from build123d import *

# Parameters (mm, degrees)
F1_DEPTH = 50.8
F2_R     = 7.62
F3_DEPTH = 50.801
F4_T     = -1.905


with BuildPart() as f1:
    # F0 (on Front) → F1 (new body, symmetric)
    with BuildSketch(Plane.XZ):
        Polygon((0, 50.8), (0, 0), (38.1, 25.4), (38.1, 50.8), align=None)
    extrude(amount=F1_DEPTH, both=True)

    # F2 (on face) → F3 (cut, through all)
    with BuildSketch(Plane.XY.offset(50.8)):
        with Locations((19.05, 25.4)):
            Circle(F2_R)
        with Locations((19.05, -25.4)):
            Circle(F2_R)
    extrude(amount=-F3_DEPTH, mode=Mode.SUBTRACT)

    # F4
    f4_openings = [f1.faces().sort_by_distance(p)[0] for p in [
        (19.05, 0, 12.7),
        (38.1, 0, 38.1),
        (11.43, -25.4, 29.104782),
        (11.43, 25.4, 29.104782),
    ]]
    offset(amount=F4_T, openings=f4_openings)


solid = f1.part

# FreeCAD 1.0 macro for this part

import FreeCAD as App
import Part
import Sketcher
from FreeCAD import Vector
Q = App.Units.Quantity


def faces_at(feature, points):
    """Names of the faces that lie closest to the given points."""
    faces = feature.Shape.Faces
    near = lambda p: min(range(len(faces)), key=lambda i: faces[i].distToShape(Part.Vertex(*p))[0])
    return sorted({f"Face{near(p) + 1}" for p in points})

doc = App.newDocument("Part")
body = doc.addObject("PartDesign::Body", "Body")

sketch1 = body.newObject("Sketcher::SketchObject", "Sketch")
sketch1.AttachmentSupport = (doc.getObject("XZ_Plane"), [""])
sketch1.MapMode = "FlatFace"
sketch1.addGeometry(Part.LineSegment(Vector(0, 51, 0), Vector(0, 0, 0)), False)
sketch1.addGeometry(Part.LineSegment(Vector(0, 0, 0), Vector(38, 25, 0)), False)
sketch1.addGeometry(Part.LineSegment(Vector(38, 25, 0), Vector(38, 51, 0)), False)
sketch1.addGeometry(Part.LineSegment(Vector(38, 51, 0), Vector(0, 51, 0)), False)
sketch1.addConstraint(Sketcher.Constraint("Coincident", 0, 2, 1, 1))
sketch1.addConstraint(Sketcher.Constraint("Coincident", 1, 2, 2, 1))
sketch1.addConstraint(Sketcher.Constraint("Coincident", 2, 2, 3, 1))
sketch1.addConstraint(Sketcher.Constraint("Coincident", 3, 2, 0, 1))
sketch1.addConstraint(Sketcher.Constraint("Vertical", 0))
sketch1.addConstraint(Sketcher.Constraint("Vertical", 2))
sketch1.addConstraint(Sketcher.Constraint("Horizontal", 3))
sketch1.addConstraint(Sketcher.Constraint("Coincident", 0, 2, -1, 1))
sketch1.addConstraint(Sketcher.Constraint("DistanceY", 0, 2, 0, 1, Q("2 in")))
sketch1.addConstraint(Sketcher.Constraint("DistanceY", 2, 1, 2, 2, Q("1 in")))
sketch1.addConstraint(Sketcher.Constraint("DistanceX", 3, 2, 3, 1, Q("1.5 in")))
pad1 = body.newObject("PartDesign::Pad", "Pad")
pad1.Profile = sketch1
pad1.Length = Q("4 in")
pad1.Midplane = True

sketch2 = body.newObject("Sketcher::SketchObject", "Sketch001")
sketch2.AttachmentSupport = (doc.getObject("XY_Plane"), [""])
sketch2.MapMode = "FlatFace"
sketch2.AttachmentOffset = App.Placement(Vector(0, 0, 2 * 25.4), App.Rotation())
sketch2.addGeometry(Part.Circle(Vector(19, 25, 0), Vector(0, 0, 1), 8), False)
sketch2.addGeometry(Part.Circle(Vector(19, -25, 0), Vector(0, 0, 1), 8), False)
sketch2.addConstraint(Sketcher.Constraint("Equal", 0, 1))
sketch2.addConstraint(Sketcher.Constraint("Symmetric", 0, 3, 1, 3, -1))
sketch2.addConstraint(Sketcher.Constraint("Diameter", 0, Q("0.6 in")))
sketch2.addConstraint(Sketcher.Constraint("DistanceY", -1, 1, 0, 3, Q("1 in")))
sketch2.addConstraint(Sketcher.Constraint("DistanceX", -1, 1, 0, 3, Q("0.75 in")))
pocket1 = body.newObject("PartDesign::Pocket", "Pocket")
pocket1.Profile = sketch2
pocket1.Type = "ThroughAll"
doc.recompute()

thickness = body.newObject("PartDesign::Thickness", "Thickness")
thickness.Base = (pocket1, faces_at(pocket1, [
    (19.05, 0, 12.7),
    (38.1, 0, 38.1),
    (11.43, -25.4, 29.105),
    (11.43, 25.4, 29.105),
]))
thickness.Value = Q("0.075 in")
thickness.Reversed = True
thickness.Join = "Arc"

doc.recompute()
